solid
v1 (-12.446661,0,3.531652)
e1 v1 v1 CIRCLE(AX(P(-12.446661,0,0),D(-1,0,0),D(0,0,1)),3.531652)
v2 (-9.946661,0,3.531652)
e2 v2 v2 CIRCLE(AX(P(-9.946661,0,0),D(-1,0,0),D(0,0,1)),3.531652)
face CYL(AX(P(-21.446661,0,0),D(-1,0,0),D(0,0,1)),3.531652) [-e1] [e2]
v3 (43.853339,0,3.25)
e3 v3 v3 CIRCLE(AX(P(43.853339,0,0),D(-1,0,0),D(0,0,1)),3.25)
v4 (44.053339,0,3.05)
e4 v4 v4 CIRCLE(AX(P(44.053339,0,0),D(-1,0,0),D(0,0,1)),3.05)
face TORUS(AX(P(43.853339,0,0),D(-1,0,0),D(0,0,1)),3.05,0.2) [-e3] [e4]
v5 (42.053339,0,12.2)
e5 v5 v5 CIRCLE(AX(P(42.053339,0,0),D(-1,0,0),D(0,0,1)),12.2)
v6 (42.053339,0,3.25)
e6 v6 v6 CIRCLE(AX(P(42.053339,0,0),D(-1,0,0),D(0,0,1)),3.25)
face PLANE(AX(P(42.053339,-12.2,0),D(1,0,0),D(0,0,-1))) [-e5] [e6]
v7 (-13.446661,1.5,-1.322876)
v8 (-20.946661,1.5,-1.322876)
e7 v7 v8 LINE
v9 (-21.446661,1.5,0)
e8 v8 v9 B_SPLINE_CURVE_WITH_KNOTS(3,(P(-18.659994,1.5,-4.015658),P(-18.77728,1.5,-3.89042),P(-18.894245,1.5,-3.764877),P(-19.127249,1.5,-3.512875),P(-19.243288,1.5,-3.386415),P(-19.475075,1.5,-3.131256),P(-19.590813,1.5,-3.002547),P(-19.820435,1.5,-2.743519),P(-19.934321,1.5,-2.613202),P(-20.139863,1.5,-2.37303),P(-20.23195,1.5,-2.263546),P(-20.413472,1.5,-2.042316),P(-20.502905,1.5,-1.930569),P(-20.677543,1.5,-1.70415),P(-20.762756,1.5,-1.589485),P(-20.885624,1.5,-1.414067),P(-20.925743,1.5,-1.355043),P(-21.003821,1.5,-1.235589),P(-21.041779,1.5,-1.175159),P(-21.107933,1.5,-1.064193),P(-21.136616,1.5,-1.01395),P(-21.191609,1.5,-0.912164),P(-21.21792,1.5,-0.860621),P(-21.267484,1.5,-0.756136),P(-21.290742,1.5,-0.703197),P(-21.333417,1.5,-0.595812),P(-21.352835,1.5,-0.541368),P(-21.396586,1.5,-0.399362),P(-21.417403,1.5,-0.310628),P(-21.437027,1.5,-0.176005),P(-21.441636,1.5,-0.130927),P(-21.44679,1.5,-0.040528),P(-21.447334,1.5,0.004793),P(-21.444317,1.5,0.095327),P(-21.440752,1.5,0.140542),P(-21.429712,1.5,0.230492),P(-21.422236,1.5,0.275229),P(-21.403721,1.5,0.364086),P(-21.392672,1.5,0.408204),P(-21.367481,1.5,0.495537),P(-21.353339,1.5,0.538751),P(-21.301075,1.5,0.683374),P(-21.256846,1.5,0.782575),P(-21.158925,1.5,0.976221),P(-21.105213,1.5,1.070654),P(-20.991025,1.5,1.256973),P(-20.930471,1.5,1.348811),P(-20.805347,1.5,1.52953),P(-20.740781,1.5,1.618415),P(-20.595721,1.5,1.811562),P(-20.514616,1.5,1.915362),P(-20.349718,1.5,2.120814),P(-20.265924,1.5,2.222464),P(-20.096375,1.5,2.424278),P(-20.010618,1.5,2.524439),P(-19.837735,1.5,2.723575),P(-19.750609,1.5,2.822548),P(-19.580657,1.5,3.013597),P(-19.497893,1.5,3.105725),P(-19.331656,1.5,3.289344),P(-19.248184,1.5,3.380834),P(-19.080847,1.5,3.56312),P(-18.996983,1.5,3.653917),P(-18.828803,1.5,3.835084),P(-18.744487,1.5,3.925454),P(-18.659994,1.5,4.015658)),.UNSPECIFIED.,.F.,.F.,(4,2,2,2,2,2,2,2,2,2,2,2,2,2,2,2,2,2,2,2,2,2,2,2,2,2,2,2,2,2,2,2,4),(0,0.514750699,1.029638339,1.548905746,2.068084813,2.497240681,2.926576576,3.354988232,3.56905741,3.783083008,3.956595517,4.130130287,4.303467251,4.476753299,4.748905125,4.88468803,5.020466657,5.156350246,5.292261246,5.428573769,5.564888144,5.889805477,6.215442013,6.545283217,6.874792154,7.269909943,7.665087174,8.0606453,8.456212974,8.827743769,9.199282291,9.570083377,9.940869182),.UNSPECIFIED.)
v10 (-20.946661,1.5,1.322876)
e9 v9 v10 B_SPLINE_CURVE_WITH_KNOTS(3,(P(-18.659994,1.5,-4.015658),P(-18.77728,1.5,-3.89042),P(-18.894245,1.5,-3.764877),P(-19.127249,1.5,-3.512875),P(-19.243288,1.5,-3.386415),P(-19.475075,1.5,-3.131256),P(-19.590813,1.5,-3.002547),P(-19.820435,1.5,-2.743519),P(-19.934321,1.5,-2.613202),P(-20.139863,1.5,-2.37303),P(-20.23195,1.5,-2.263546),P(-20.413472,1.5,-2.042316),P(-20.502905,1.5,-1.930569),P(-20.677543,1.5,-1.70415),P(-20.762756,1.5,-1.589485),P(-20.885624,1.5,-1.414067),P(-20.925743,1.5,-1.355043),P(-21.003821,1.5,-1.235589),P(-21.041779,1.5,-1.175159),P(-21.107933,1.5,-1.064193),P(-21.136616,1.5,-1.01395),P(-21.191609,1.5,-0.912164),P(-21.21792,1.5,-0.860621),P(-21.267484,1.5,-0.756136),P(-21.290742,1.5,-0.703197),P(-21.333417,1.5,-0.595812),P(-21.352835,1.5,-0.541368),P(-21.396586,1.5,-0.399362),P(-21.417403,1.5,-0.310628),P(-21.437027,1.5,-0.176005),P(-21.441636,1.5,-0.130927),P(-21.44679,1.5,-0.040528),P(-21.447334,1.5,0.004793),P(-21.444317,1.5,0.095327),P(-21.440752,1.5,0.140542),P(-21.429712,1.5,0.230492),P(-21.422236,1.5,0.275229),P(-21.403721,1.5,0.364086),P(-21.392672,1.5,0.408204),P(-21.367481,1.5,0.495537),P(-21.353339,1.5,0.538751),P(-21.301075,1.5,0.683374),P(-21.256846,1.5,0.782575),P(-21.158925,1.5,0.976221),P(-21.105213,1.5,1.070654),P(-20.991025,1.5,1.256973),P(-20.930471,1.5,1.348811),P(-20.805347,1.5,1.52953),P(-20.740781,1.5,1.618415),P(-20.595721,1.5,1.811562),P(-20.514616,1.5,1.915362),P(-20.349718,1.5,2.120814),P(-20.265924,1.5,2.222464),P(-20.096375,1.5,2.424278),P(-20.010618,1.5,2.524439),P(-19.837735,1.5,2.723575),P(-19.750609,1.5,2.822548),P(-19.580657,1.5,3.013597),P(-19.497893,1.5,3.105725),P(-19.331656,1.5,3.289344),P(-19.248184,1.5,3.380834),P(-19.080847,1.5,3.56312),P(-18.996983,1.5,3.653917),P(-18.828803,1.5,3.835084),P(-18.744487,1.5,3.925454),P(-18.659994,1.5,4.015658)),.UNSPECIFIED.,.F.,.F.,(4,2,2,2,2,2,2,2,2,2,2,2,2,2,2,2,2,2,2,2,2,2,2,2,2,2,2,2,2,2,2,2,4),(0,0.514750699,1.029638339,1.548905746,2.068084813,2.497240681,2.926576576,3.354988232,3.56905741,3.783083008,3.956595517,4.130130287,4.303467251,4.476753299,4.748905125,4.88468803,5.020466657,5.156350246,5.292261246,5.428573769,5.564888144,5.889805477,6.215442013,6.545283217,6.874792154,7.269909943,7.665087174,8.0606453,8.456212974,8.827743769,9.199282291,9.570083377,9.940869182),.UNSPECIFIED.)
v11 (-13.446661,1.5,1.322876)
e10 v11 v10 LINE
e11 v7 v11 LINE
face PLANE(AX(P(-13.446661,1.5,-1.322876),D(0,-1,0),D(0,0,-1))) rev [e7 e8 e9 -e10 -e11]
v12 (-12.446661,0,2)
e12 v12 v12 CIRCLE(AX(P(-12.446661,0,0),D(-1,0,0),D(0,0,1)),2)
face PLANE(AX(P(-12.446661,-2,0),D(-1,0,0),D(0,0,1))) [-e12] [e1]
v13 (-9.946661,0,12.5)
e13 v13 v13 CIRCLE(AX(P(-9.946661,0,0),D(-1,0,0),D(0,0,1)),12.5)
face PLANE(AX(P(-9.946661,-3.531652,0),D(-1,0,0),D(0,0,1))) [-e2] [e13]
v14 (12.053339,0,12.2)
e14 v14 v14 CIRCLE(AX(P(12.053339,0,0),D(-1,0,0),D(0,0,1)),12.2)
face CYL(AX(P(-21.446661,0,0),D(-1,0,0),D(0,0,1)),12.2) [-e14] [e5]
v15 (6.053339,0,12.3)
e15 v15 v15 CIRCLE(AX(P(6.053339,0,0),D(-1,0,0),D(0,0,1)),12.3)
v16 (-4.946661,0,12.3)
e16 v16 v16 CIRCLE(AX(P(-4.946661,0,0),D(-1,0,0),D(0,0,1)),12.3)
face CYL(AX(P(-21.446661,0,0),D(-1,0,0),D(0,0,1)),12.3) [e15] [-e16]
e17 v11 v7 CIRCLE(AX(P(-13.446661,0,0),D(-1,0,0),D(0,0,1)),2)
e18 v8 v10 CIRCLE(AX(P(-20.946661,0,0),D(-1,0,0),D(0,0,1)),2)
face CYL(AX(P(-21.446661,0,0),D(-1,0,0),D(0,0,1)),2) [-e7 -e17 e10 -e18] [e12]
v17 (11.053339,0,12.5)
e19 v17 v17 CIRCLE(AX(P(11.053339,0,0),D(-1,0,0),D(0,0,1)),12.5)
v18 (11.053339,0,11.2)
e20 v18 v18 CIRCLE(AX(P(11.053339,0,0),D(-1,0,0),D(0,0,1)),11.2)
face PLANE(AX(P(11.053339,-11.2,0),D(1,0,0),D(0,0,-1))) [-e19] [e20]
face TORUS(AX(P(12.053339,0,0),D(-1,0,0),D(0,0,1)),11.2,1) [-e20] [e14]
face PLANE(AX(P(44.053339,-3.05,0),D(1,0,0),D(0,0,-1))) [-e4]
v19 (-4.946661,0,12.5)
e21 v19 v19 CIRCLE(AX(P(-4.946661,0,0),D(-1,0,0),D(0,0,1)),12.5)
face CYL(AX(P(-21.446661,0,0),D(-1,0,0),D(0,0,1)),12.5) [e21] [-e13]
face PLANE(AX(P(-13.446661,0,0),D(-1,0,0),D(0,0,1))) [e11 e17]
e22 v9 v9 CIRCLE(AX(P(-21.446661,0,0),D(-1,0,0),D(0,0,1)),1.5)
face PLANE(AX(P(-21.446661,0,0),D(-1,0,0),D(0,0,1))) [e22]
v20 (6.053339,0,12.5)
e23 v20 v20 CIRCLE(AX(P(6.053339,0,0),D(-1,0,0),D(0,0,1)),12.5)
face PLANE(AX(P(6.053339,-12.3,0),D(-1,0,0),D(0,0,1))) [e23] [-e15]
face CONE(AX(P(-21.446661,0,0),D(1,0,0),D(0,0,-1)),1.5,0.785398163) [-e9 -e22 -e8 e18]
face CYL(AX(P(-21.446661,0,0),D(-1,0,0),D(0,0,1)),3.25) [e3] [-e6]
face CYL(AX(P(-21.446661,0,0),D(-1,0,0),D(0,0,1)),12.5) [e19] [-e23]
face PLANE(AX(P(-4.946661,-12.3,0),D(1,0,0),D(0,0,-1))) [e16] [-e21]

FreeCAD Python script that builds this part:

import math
import FreeCAD as App
import Part
import Sketcher

V = App.Vector
Q = App.Units.Quantity

doc = App.newDocument("Part")
body = doc.addObject("PartDesign::Body", "Body")

sketch1 = body.newObject("Sketcher::SketchObject", "Sketch")
sketch1.AttachmentSupport = (doc.getObject("XY_Plane"), [""])
sketch1.MapMode = "FlatFace"
sketch1.addGeometry([
    Part.LineSegment(V(-9.946661, -3.531652, 0), V(-9.946661, -12.5, 0)),
    Part.LineSegment(V(-9.946661, -12.5, 0), V(-4.946661, -12.5, 0)),
    Part.LineSegment(V(-4.946661, -12.5, 0), V(-4.946661, -12.3, 0)),
    Part.LineSegment(V(-4.946661, -12.3, 0), V(6.053339, -12.3, 0)),
    Part.LineSegment(V(6.053339, -12.3, 0), V(6.053339, -12.5, 0)),
    Part.LineSegment(V(6.053339, -12.5, 0), V(11.053339, -12.5, 0)),
    Part.LineSegment(V(11.053339, -12.5, 0), V(11.053339, -11.2, 0)),
    Part.ArcOfCircle(Part.Circle(V(12.053339, -11.2, 0), V(0, 0, 1), 1), math.radians(-180), math.radians(-90)),
    Part.LineSegment(V(12.053339, -12.2, 0), V(42.053339, -12.2, 0)),
    Part.LineSegment(V(42.053339, -12.2, 0), V(42.053339, -3.25, 0)),
    Part.LineSegment(V(42.053339, -3.25, 0), V(43.853339, -3.25, 0)),
    Part.ArcOfCircle(Part.Circle(V(43.853339, -3.05, 0), V(0, 0, 1), 0.2), math.radians(-90), math.radians(0)),
    Part.LineSegment(V(44.053339, -3.05, 0), V(44.053339, 0, 0)),
    Part.LineSegment(V(44.053339, 0, 0), V(-21.446661, 0, 0)),
    Part.LineSegment(V(-21.446661, 0, 0), V(-21.446661, -1.5, 0)),
    Part.LineSegment(V(-21.446661, -1.5, 0), V(-20.946661, -2, 0)),
    Part.LineSegment(V(-20.946661, -2, 0), V(-12.446661, -2, 0)),
    Part.LineSegment(V(-12.446661, -2, 0), V(-12.446661, -3.531652, 0)),
    Part.LineSegment(V(-12.446661, -3.531652, 0), V(-9.946661, -3.531652, 0)),
], False)
sketch1.addConstraint([
    Sketcher.Constraint("Coincident", 0, 2, 1, 1),
    Sketcher.Constraint("Coincident", 1, 2, 2, 1),
    Sketcher.Constraint("Coincident", 2, 2, 3, 1),
    Sketcher.Constraint("Coincident", 3, 2, 4, 1),
    Sketcher.Constraint("Coincident", 4, 2, 5, 1),
    Sketcher.Constraint("Coincident", 5, 2, 6, 1),
    Sketcher.Constraint("Tangent", 6, 2, 7, 1),
    Sketcher.Constraint("Tangent", 7, 2, 8, 1),
    Sketcher.Constraint("Coincident", 8, 2, 9, 1),
    Sketcher.Constraint("Coincident", 9, 2, 10, 1),
    Sketcher.Constraint("Tangent", 10, 2, 11, 1),
    Sketcher.Constraint("Tangent", 11, 2, 12, 1),
    Sketcher.Constraint("Coincident", 12, 2, 13, 1),
    Sketcher.Constraint("Coincident", 13, 2, 14, 1),
    Sketcher.Constraint("Coincident", 14, 2, 15, 1),
    Sketcher.Constraint("Coincident", 15, 2, 16, 1),
    Sketcher.Constraint("Coincident", 16, 2, 17, 1),
    Sketcher.Constraint("Coincident", 17, 2, 18, 1),
    Sketcher.Constraint("Coincident", 18, 2, 0, 1),
    Sketcher.Constraint("Vertical", 0),
    Sketcher.Constraint("Horizontal", 1),
    Sketcher.Constraint("Vertical", 2),
    Sketcher.Constraint("Horizontal", 3),
    Sketcher.Constraint("Vertical", 4),
    Sketcher.Constraint("Horizontal", 5),
    Sketcher.Constraint("Vertical", 6),
    Sketcher.Constraint("Horizontal", 8),
    Sketcher.Constraint("Vertical", 9),
    Sketcher.Constraint("Horizontal", 10),
    Sketcher.Constraint("Vertical", 12),
    Sketcher.Constraint("Horizontal", 13),
    Sketcher.Constraint("Vertical", 14),
    Sketcher.Constraint("Horizontal", 16),
    Sketcher.Constraint("Vertical", 17),
    Sketcher.Constraint("Horizontal", 18),
    Sketcher.Constraint("PointOnObject", 12, 2, -1),
    Sketcher.Constraint("Horizontal", 1, 2, 4, 2),
    Sketcher.Constraint("Equal", 1, 5),
    Sketcher.Constraint("Radius", 7, 1.0),
    Sketcher.Constraint("Radius", 11, 0.2),
    Sketcher.Constraint("DistanceX", 1, 1, 1, 2, 5.0),
    Sketcher.Constraint("DistanceX", 3, 1, 3, 2, 11.0),
    Sketcher.Constraint("DistanceX", 8, 1, 8, 2, 30.0),
    Sketcher.Constraint("Angle", 15, Q("-45 deg")),
    Sketcher.Constraint("DistanceX", 10, 1, 10, 2, 1.8),
    Sketcher.Constraint("DistanceX", 13, 2, 13, 1, 65.5),
    Sketcher.Constraint("DistanceX", 16, 1, 16, 2, 8.5),
    Sketcher.Constraint("DistanceX", 18, 1, 18, 2, 2.5),
    Sketcher.Constraint("DistanceY", 2, 1, 2, 2, 0.2),
    Sketcher.Constraint("DistanceY", 6, 1, 6, 2, 1.3),
    Sketcher.Constraint("DistanceY", 14, 2, 14, 1, 1.5),
    Sketcher.Constraint("DistanceY", 0, 2, 14, 2, 11.0),
    Sketcher.Constraint("DistanceY", 9, 1, 9, 2, 8.95),
    Sketcher.Constraint("DistanceY", 0, 2, 0, 1, 8.968348),
    Sketcher.Constraint("DistanceX", -1, 1, 7, 3, 12.053339),
])
revolution = body.newObject("PartDesign::Revolution", "Revolution")
revolution.Profile = sketch1
revolution.ReferenceAxis = (sketch1, ["H_Axis"])
revolution.Angle = 360

sketch2 = body.newObject("Sketcher::SketchObject", "Sketch001")
sketch2.AttachmentSupport = (doc.getObject("YZ_Plane"), [""])
sketch2.MapMode = "FlatFace"
sketch2.AttachmentOffset = App.Placement(V(0, 0, -21.446661), App.Rotation())
sketch2.addGeometry([
    Part.LineSegment(V(1.5, -1.322876, 0), V(1.5, 1.322876, 0)),
    Part.ArcOfCircle(Part.Circle(V(0, 0, 0), V(0, 0, 1), 2), math.radians(-41.409622), math.radians(41.409622)),
], False)
sketch2.addConstraint([
    Sketcher.Constraint("Coincident", 0, 1, 1, 1),
    Sketcher.Constraint("Coincident", 1, 2, 0, 2),
    Sketcher.Constraint("Vertical", 0),
    Sketcher.Constraint("Coincident", 1, 3, -1, 1),
    Sketcher.Constraint("Radius", 1, 2.0),
    Sketcher.Constraint("DistanceX", -1, 1, 0, 1, 1.5),
])
pocket1 = body.newObject("PartDesign::Pocket", "Pocket")
pocket1.Profile = sketch2
pocket1.Length = 8
pocket1.Reversed = True

doc.recompute()
